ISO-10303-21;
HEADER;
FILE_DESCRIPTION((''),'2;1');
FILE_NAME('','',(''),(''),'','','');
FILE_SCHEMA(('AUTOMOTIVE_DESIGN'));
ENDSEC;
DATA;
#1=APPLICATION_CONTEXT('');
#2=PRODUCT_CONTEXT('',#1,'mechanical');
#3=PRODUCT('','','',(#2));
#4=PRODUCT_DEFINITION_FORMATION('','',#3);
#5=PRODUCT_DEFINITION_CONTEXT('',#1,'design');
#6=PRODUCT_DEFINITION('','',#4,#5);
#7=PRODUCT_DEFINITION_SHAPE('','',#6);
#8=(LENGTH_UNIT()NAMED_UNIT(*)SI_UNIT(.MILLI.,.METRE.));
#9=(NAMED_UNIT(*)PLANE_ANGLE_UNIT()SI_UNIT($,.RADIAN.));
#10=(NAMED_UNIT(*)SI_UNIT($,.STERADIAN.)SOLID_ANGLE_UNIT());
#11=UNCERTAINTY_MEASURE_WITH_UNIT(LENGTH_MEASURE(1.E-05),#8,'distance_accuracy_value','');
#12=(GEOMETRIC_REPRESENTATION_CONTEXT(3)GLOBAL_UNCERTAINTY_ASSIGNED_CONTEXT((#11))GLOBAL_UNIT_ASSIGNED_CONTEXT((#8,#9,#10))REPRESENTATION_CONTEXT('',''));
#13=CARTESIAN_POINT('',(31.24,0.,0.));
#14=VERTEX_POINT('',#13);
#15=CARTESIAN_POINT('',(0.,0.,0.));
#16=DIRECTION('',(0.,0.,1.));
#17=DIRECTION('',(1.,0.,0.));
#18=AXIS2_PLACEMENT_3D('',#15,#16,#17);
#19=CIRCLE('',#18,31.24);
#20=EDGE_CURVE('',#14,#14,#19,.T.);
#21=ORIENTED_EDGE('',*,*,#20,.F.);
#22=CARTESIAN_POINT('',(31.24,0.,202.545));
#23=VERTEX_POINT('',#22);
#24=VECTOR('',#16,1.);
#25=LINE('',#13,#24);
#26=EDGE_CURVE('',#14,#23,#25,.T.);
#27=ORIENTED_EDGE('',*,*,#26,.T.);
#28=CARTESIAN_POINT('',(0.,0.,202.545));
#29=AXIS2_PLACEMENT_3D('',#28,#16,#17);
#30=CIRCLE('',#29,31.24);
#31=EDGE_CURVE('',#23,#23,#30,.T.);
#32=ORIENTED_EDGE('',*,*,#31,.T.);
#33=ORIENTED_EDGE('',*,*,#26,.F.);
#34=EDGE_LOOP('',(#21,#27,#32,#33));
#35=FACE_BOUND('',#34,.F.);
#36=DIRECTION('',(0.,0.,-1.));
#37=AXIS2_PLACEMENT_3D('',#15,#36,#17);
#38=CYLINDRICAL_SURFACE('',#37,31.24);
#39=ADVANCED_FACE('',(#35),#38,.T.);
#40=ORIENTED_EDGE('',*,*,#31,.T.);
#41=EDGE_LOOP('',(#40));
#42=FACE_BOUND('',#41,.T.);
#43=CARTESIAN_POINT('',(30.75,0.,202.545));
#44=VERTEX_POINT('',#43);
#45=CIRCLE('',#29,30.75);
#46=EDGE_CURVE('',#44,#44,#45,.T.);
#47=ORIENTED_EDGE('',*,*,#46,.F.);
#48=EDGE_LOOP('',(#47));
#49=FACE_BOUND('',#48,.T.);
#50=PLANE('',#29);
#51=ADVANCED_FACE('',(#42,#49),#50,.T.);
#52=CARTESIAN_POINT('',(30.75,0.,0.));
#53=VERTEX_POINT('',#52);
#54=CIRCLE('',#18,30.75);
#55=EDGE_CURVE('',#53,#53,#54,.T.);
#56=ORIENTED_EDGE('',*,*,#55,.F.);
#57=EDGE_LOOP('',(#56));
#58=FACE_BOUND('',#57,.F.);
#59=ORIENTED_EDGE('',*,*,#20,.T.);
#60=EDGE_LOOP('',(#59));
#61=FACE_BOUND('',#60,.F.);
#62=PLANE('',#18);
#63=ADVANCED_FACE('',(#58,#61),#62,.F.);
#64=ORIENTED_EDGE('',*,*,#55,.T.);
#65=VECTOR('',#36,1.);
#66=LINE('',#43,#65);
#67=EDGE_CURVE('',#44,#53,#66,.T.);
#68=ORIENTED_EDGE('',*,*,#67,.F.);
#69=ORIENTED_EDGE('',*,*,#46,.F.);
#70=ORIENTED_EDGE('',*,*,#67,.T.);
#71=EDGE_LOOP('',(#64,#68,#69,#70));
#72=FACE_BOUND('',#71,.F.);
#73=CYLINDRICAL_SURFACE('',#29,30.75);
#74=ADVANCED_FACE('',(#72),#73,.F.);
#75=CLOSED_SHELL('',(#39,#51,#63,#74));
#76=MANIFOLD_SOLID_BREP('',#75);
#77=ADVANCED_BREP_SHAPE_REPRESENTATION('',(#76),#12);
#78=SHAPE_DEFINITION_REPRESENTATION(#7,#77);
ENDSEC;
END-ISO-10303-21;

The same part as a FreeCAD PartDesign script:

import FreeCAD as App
import Part
import Sketcher

V = App.Vector

doc = App.newDocument("Part")
body = doc.addObject("PartDesign::Body", "Body")

# Sketch on XY plane
sketch1 = body.newObject("Sketcher::SketchObject", "Sketch")
sketch1.AttachmentSupport = (doc.getObject("XY_Plane"), [""])
sketch1.MapMode = "FlatFace"
sketch1.addGeometry(Part.Circle(V(0, 0, 0), V(0, 0, 1), 31), False)
sketch1.addConstraint([
    Sketcher.Constraint("Coincident", 0, 3, -1, 1),
    Sketcher.Constraint("Diameter", 0, 62.48),
])
pad1 = body.newObject("PartDesign::Pad", "Pad")
pad1.Profile = sketch1
pad1.Length = 202.545

# Sketch on XY plane
sketch2 = body.newObject("Sketcher::SketchObject", "Sketch001")
sketch2.AttachmentSupport = (doc.getObject("XY_Plane"), [""])
sketch2.MapMode = "FlatFace"
sketch2.AttachmentOffset = App.Placement(V(0, 0, 202.545), App.Rotation())
sketch2.addGeometry(Part.Circle(V(0, 0, 0), V(0, 0, 1), 31), False)
sketch2.addConstraint([
    Sketcher.Constraint("Coincident", 0, 3, -1, 1),
    Sketcher.Constraint("Diameter", 0, 61.5),
])
pocket1 = body.newObject("PartDesign::Pocket", "Pocket")
pocket1.Profile = sketch2
pocket1.Type = "ThroughAll"

doc.recompute()
